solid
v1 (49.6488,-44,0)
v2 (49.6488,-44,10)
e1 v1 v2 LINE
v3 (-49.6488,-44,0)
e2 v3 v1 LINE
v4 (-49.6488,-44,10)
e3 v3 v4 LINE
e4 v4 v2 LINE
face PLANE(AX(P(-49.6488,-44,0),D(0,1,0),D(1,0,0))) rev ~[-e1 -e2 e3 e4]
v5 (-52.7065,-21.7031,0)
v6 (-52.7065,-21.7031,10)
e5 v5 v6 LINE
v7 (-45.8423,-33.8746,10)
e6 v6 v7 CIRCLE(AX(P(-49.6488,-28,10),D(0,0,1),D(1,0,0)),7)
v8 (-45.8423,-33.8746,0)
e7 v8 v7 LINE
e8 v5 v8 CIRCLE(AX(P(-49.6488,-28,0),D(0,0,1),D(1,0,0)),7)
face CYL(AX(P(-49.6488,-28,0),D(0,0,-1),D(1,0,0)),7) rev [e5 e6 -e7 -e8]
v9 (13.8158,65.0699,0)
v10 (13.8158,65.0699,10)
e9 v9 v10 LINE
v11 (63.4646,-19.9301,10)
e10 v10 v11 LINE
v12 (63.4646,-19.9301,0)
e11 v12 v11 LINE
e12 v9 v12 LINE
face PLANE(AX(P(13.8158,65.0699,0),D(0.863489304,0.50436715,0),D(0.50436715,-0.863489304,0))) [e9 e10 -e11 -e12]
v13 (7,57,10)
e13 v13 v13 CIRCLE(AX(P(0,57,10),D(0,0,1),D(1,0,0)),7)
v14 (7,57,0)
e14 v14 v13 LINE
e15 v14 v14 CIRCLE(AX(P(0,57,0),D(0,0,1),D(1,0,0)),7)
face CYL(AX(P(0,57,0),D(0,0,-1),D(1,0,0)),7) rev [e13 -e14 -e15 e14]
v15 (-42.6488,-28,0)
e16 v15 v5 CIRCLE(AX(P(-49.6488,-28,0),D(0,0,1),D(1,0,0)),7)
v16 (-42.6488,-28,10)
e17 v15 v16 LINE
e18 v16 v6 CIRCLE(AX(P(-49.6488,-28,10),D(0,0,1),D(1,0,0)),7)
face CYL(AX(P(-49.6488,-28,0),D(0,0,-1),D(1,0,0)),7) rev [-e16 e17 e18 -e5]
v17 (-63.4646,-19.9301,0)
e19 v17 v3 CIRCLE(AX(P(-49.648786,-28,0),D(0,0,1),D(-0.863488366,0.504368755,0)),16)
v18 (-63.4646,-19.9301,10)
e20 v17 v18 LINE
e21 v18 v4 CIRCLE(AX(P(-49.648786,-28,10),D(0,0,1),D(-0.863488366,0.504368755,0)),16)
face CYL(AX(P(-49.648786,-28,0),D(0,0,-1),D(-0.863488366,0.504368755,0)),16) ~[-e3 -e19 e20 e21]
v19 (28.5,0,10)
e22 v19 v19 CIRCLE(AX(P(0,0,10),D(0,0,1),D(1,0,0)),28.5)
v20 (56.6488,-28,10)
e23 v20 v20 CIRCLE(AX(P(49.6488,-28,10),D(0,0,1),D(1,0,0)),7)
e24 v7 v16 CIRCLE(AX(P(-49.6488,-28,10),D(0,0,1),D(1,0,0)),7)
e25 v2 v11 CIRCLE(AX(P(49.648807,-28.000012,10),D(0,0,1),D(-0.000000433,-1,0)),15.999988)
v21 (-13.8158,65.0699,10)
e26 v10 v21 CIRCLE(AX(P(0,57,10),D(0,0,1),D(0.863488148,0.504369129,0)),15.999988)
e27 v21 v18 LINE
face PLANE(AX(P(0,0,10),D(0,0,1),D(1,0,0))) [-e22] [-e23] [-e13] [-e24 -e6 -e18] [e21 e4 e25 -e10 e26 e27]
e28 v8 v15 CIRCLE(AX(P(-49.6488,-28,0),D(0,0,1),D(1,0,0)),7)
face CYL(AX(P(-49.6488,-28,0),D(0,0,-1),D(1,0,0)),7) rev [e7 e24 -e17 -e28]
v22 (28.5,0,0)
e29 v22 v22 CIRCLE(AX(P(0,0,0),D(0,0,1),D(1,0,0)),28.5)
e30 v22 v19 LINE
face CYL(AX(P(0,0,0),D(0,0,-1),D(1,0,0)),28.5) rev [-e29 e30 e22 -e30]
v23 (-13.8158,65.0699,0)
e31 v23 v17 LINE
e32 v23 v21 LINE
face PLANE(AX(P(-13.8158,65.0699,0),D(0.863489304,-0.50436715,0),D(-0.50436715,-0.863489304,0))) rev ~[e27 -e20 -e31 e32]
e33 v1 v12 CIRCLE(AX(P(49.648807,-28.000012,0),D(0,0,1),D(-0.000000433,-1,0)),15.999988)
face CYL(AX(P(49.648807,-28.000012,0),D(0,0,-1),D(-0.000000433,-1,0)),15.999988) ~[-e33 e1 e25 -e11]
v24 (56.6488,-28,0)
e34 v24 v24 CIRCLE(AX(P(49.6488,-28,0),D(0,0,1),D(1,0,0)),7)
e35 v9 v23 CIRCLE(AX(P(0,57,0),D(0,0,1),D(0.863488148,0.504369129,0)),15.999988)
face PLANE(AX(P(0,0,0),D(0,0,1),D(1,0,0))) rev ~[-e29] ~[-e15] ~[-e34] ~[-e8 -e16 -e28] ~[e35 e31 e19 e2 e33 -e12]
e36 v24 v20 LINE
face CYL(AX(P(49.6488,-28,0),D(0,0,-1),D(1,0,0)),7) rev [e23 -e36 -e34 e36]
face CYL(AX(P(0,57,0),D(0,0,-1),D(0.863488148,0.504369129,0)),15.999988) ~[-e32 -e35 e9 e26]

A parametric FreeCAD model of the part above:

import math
import FreeCAD as App
import Part
import Sketcher
Q = App.Units.Quantity

doc = App.newDocument("Part")
body = doc.addObject("PartDesign::Body", "Body")

# Sketch on XY plane
sketch1 = body.newObject("Sketcher::SketchObject", "Sketch")
sketch1.AttachmentSupport = (doc.getObject("XY_Plane"), [""])
sketch1.MapMode = "FlatFace"
sketch1.addGeometry([
    Part.LineSegment(App.Vector(63, -20, 0), App.Vector(14, 65, 0)),  # 0
    Part.ArcOfCircle(Part.Circle(App.Vector(0, 57, 0), App.Vector(0, 0, 1), 16), math.radians(30), math.radians(150)),  # 1
    Part.LineSegment(App.Vector(-14, 65, 0), App.Vector(-63, -20, 0)),  # 2
    Part.ArcOfCircle(Part.Circle(App.Vector(-50, -28, 0), App.Vector(0, 0, 1), 16), math.radians(150), math.radians(270)),  # 3
    Part.LineSegment(App.Vector(-50, -44, 0), App.Vector(50, -44, 0)),  # 4
    Part.ArcOfCircle(Part.Circle(App.Vector(50, -28, 0), App.Vector(0, 0, 1), 16), math.radians(-90), math.radians(30)),  # 5
    Part.Circle(App.Vector(-50, -28, 0), App.Vector(0, 0, 1), 7),  # 6
    Part.Circle(App.Vector(0, 0, 0), App.Vector(0, 0, 1), 28),  # 7
    Part.Circle(App.Vector(50, -28, 0), App.Vector(0, 0, 1), 7),  # 8
    Part.Circle(App.Vector(0, 57, 0), App.Vector(0, 0, 1), 7),  # 9
], False)
sketch1.addConstraint([
    Sketcher.Constraint("Tangent", 0, 2, 1, 1),
    Sketcher.Constraint("Tangent", 1, 2, 2, 1),
    Sketcher.Constraint("Tangent", 2, 2, 3, 1),
    Sketcher.Constraint("Tangent", 3, 2, 4, 1),
    Sketcher.Constraint("Tangent", 4, 2, 5, 1),
    Sketcher.Constraint("Tangent", 5, 2, 0, 1),
    Sketcher.Constraint("Horizontal", 4),
    Sketcher.Constraint("Coincident", 7, 3, -1, 1),
    Sketcher.Constraint("Coincident", 6, 3, 3, 3),
    Sketcher.Constraint("Coincident", 8, 3, 5, 3),
    Sketcher.Constraint("Coincident", 9, 3, 1, 3),
    Sketcher.Constraint("Equal", 1, 3),
    Sketcher.Constraint("Equal", 3, 5),
    Sketcher.Constraint("Equal", 6, 8),
    Sketcher.Constraint("Equal", 8, 9),
    Sketcher.Constraint("Symmetric", 0, 2, 1, 2, -2),
    Sketcher.Constraint("Diameter", 6, 14.0),
    Sketcher.Constraint("Diameter", 7, 57.0),
    Sketcher.Constraint("Radius", 1, 16.0),
    Sketcher.Constraint("DistanceY", -1, 1, 1, 3, 57.0),
    Sketcher.Constraint("DistanceY", 3, 3, -1, 1, 28.0),
    Sketcher.Constraint("Angle", 0, Q("120.2894 deg")),
])
pad1 = body.newObject("PartDesign::Pad", "Pad")
pad1.Profile = sketch1
pad1.Length = 10

doc.recompute()
